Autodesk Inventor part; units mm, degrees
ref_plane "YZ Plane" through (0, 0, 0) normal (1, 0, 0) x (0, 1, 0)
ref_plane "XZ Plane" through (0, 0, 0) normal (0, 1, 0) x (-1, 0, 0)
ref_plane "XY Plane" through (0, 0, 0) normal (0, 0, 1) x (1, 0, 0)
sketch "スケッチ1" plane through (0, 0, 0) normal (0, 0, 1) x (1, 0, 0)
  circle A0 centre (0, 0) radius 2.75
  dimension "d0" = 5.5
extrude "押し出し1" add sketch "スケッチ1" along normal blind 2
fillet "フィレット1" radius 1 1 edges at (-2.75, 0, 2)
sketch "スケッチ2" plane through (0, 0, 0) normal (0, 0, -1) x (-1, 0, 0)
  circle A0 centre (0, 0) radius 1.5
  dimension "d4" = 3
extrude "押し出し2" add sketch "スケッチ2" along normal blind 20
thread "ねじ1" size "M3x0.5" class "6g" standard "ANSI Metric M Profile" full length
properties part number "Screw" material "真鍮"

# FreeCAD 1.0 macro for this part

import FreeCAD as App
import Part
import Sketcher
from FreeCAD import Vector
Q = App.Units.Quantity


def edges_at(feature, points):
    """Names of the edges that pass closest to the given points."""
    edges = feature.Shape.Edges
    near = lambda p: min(range(len(edges)), key=lambda i: edges[i].distToShape(Part.Vertex(*p))[0])
    return sorted({f"Edge{near(p) + 1}" for p in points})

doc = App.newDocument("Part")
body = doc.addObject("PartDesign::Body", "Body")

# Sketch on XY plane
sketch1 = body.newObject("Sketcher::SketchObject", "Sketch")
sketch1.AttachmentSupport = (doc.getObject("XY_Plane"), [""])
sketch1.MapMode = "FlatFace"
sketch1.addGeometry(Part.Circle(Vector(0, 0, 0), Vector(0, 0, 1), 2.8), False)
sketch1.addConstraint(Sketcher.Constraint("Coincident", 0, 3, -1, 1))
sketch1.addConstraint(Sketcher.Constraint("Diameter", 0, Q("5.5 mm")))
pad1 = body.newObject("PartDesign::Pad", "Pad")
pad1.Profile = sketch1
pad1.Length = 2
doc.recompute()

fillet = body.newObject("PartDesign::Fillet", "Fillet")
fillet.Base = (pad1, edges_at(pad1, [(-2.75, 0, 2)]))
fillet.Radius = 1

# Sketch on XY plane
sketch2 = body.newObject("Sketcher::SketchObject", "Sketch001")
sketch2.AttachmentSupport = (doc.getObject("XY_Plane"), [""])
sketch2.MapMode = "FlatFace"
sketch2.addGeometry(Part.Circle(Vector(0, 0, 0), Vector(0, 0, 1), 1.5), False)
sketch2.addConstraint(Sketcher.Constraint("Coincident", 0, 3, -1, 1))
sketch2.addConstraint(Sketcher.Constraint("Diameter", 0, Q("3 mm")))
pad2 = body.newObject("PartDesign::Pad", "Pad001")
pad2.Profile = sketch2
pad2.Length = 20
pad2.Reversed = True

doc.recompute()
